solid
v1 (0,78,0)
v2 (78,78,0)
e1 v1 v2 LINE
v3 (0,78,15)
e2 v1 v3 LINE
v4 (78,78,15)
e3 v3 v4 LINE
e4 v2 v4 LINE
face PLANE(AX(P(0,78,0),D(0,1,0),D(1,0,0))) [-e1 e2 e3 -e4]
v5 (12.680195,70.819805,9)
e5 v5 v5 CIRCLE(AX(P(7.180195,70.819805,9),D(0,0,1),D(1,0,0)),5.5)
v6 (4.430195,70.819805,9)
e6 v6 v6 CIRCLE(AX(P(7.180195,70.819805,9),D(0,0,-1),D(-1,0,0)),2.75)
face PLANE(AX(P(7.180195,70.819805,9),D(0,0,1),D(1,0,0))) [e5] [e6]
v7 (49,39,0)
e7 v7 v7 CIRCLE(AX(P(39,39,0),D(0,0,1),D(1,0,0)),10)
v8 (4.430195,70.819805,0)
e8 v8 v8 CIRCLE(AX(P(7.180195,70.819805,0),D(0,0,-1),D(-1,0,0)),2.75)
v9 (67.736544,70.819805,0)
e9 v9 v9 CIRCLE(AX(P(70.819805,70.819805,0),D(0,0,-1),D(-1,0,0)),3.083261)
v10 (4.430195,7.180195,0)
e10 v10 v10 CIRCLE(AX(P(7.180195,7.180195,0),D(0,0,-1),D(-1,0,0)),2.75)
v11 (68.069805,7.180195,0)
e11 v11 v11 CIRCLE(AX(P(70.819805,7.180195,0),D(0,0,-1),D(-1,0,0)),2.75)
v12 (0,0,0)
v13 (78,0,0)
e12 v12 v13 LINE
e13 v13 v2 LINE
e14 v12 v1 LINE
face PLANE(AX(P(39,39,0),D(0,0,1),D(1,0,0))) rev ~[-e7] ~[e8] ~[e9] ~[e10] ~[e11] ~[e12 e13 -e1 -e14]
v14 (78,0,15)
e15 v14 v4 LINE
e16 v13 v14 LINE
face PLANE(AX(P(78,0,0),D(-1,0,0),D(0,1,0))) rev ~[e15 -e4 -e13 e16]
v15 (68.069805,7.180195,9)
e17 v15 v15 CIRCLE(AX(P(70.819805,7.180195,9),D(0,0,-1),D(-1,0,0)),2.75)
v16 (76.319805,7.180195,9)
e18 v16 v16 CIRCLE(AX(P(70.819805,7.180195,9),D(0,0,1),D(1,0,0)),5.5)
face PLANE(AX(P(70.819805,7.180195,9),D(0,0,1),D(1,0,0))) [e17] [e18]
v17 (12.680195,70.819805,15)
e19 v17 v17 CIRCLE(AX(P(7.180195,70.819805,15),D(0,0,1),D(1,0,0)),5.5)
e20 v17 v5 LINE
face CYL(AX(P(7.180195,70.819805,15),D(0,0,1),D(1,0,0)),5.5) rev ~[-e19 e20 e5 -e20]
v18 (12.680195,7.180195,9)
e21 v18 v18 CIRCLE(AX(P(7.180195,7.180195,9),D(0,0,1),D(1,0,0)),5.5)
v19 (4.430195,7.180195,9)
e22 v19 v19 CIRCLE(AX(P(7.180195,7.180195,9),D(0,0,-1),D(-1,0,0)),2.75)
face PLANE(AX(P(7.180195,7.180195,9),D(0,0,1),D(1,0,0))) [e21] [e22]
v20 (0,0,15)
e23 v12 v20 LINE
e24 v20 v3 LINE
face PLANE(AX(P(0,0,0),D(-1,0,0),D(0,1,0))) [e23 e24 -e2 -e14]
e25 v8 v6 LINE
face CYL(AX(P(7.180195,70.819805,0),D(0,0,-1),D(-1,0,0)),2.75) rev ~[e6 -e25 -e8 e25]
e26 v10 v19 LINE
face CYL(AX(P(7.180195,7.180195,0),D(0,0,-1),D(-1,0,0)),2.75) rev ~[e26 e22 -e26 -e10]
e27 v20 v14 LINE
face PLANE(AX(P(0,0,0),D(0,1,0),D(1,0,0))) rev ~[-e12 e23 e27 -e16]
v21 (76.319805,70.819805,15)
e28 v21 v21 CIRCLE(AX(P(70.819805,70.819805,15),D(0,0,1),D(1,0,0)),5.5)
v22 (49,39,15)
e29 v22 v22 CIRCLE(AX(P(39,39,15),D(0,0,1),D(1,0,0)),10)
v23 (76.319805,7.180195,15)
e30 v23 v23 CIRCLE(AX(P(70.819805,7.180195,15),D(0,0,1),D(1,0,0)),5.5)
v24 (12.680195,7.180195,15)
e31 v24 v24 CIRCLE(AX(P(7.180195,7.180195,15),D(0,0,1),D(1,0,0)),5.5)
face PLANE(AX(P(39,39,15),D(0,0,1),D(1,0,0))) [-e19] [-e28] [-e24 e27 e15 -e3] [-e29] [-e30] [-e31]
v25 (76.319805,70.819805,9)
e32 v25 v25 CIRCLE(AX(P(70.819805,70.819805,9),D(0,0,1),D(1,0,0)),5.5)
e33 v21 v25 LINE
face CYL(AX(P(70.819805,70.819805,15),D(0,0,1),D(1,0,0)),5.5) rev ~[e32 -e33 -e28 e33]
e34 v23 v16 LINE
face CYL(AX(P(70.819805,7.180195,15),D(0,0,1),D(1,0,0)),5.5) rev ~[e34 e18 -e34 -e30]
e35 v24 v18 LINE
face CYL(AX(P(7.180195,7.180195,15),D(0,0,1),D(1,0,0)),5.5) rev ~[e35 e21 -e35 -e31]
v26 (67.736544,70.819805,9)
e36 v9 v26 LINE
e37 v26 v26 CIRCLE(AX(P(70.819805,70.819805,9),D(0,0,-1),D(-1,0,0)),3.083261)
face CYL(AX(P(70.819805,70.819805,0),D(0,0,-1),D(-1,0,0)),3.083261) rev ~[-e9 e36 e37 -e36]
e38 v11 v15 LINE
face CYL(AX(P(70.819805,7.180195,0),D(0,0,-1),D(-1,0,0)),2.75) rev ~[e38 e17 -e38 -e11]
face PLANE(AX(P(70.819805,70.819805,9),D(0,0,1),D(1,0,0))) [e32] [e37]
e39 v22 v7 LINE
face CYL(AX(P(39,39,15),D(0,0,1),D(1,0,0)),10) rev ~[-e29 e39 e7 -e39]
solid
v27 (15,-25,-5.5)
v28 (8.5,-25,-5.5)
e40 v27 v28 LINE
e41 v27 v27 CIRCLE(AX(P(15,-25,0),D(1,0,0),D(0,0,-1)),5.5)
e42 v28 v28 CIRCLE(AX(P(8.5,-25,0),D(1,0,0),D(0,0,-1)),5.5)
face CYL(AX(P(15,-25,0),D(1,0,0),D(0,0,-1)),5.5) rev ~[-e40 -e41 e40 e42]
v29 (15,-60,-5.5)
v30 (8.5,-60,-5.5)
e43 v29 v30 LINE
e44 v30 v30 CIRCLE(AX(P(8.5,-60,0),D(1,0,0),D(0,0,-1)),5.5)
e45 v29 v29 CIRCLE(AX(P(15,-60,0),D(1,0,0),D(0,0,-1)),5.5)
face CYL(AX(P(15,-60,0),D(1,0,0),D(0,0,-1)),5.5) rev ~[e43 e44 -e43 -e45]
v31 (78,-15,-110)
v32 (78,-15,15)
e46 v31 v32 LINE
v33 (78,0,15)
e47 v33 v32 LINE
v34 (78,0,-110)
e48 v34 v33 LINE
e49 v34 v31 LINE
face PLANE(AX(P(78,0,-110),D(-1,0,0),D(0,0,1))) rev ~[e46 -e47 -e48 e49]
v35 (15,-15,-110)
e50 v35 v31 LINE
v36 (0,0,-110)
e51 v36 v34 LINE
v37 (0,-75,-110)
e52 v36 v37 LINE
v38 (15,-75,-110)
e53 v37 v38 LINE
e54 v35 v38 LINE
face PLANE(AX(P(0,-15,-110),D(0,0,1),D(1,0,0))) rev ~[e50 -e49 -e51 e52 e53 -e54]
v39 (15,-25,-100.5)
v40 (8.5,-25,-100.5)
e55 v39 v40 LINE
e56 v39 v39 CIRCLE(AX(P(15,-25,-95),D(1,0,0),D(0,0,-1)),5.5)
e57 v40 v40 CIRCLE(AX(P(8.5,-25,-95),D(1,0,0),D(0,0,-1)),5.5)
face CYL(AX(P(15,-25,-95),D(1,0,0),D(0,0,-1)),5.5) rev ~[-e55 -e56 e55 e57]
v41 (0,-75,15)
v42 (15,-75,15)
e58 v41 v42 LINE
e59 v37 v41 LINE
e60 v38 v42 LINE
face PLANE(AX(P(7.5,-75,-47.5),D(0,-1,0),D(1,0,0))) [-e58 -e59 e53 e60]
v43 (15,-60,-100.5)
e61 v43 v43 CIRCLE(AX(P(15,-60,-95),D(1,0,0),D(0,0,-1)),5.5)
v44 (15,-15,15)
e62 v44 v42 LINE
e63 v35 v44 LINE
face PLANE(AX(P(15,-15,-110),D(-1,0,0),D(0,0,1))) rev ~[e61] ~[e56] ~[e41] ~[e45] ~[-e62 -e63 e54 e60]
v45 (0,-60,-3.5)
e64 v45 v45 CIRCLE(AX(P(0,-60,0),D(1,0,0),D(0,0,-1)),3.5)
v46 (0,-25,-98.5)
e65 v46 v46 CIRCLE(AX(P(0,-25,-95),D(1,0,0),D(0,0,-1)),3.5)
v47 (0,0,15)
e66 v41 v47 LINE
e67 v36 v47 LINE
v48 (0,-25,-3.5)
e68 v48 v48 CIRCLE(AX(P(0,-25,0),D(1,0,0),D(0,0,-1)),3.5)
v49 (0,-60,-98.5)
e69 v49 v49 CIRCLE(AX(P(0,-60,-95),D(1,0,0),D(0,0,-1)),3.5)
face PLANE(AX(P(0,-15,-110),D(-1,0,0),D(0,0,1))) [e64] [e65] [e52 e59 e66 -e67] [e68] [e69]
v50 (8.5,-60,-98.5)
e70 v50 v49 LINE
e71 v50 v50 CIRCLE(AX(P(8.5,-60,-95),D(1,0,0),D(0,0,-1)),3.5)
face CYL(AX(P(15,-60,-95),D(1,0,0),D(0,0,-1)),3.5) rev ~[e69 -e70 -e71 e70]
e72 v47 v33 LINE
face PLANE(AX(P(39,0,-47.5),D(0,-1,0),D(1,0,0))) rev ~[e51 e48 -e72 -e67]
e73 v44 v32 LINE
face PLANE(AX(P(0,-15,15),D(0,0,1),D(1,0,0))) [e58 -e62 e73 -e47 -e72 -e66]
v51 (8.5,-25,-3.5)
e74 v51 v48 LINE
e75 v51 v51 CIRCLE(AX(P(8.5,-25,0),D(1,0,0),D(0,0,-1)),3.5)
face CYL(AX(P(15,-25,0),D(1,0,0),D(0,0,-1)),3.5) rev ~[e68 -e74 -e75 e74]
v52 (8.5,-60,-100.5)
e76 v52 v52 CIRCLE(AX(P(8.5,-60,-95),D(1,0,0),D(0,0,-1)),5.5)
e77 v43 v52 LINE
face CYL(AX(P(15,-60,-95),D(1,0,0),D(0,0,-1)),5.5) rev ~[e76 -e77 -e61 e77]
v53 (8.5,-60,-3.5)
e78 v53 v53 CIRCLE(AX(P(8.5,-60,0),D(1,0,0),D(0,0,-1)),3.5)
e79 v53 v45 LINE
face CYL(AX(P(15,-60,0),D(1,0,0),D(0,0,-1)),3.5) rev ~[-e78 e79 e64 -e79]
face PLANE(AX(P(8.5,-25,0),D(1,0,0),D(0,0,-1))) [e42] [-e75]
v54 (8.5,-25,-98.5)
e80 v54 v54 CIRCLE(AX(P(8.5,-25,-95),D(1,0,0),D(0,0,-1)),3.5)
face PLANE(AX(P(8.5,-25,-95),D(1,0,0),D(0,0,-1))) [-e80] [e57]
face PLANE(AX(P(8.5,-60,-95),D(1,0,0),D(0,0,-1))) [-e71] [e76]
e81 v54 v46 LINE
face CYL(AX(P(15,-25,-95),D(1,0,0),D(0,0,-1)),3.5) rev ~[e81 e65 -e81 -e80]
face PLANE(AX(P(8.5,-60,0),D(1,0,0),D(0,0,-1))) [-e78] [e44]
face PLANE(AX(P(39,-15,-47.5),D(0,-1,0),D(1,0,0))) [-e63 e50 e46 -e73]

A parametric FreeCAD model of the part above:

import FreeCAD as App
import Part
import Sketcher

V = App.Vector

doc = App.newDocument("Part")
body = doc.addObject("PartDesign::Body", "Body")

sketch1 = body.newObject("Sketcher::SketchObject", "Sketch")
sketch1.AttachmentSupport = (doc.getObject("XY_Plane"), [""])
sketch1.MapMode = "FlatFace"
sketch1.addGeometry(Part.LineSegment(V(0, 78, 0), V(0, 0, 0)), False)
sketch1.addGeometry(Part.LineSegment(V(0, 0, 0), V(78, 0, 0)), False)
sketch1.addGeometry(Part.LineSegment(V(78, 0, 0), V(78, 78, 0)), False)
sketch1.addGeometry(Part.LineSegment(V(78, 78, 0), V(0, 78, 0)), False)
sketch1.addConstraint(Sketcher.Constraint("Coincident", 0, 2, 1, 1))
sketch1.addConstraint(Sketcher.Constraint("Coincident", 1, 2, 2, 1))
sketch1.addConstraint(Sketcher.Constraint("Coincident", 2, 2, 3, 1))
sketch1.addConstraint(Sketcher.Constraint("Coincident", 3, 2, 0, 1))
sketch1.addConstraint(Sketcher.Constraint("Vertical", 0))
sketch1.addConstraint(Sketcher.Constraint("Horizontal", 1))
sketch1.addConstraint(Sketcher.Constraint("Vertical", 2))
sketch1.addConstraint(Sketcher.Constraint("Horizontal", 3))
sketch1.addConstraint(Sketcher.Constraint("Coincident", 0, 2, -1, 1))
sketch1.addConstraint(Sketcher.Constraint("Equal", 3, 0))
sketch1.addConstraint(Sketcher.Constraint("DistanceX", 1, 1, 1, 2, 78.0))
pad1 = body.newObject("PartDesign::Pad", "Pad")
pad1.Profile = sketch1
pad1.Length = 15

sketch2 = body.newObject("Sketcher::SketchObject", "Sketch001")
sketch2.AttachmentSupport = (doc.getObject("XY_Plane"), [""])
sketch2.MapMode = "FlatFace"
sketch2.addGeometry(Part.Circle(V(70.819805, 70.819805, 0), V(0, 0, 1), 3.083261), False)
sketch2.addGeometry(Part.Circle(V(70.819805, 7.180195, 0), V(0, 0, 1), 2.75), False)
sketch2.addGeometry(Part.Circle(V(7.180195, 70.819805, 0), V(0, 0, 1), 2.75), False)
sketch2.addGeometry(Part.Circle(V(7.180195, 7.180195, 0), V(0, 0, 1), 2.75), False)
sketch2.addConstraint(Sketcher.Constraint("Equal", 1, 2))
sketch2.addConstraint(Sketcher.Constraint("Equal", 2, 3))
sketch2.addConstraint(Sketcher.Constraint("Horizontal", 0, 3, 2, 3))
sketch2.addConstraint(Sketcher.Constraint("Horizontal", 1, 3, 3, 3))
sketch2.addConstraint(Sketcher.Constraint("Vertical", 0, 3, 1, 3))
sketch2.addConstraint(Sketcher.Constraint("Vertical", 2, 3, 3, 3))
sketch2.addConstraint(Sketcher.Constraint("Diameter", 1, 5.5))
sketch2.addConstraint(Sketcher.Constraint("Diameter", 0, 6.166522))
sketch2.addConstraint(Sketcher.Constraint("DistanceY", 1, 3, 0, 3, 63.63961))
sketch2.addConstraint(Sketcher.Constraint("DistanceX", 2, 3, 0, 3, 63.63961))
sketch2.addConstraint(Sketcher.Constraint("DistanceX", -1, 1, 0, 3, 70.819805))
sketch2.addConstraint(Sketcher.Constraint("DistanceY", -1, 1, 0, 3, 70.819805))
pocket1 = body.newObject("PartDesign::Pocket", "Pocket")
pocket1.Profile = sketch2
pocket1.Type = "ThroughAll"
pocket1.Reversed = True

sketch3 = body.newObject("Sketcher::SketchObject", "Sketch002")
sketch3.AttachmentSupport = (doc.getObject("XY_Plane"), [""])
sketch3.MapMode = "FlatFace"
sketch3.AttachmentOffset = App.Placement(V(0, 0, 15), App.Rotation())
sketch3.addGeometry(Part.Circle(V(39, 39, 0), V(0, 0, 1), 10), False)
sketch3.addConstraint(Sketcher.Constraint("Diameter", 0, 20.0))
sketch3.addConstraint(Sketcher.Constraint("DistanceX", -1, 1, 0, 3, 39.0))
sketch3.addConstraint(Sketcher.Constraint("DistanceY", -1, 1, 0, 3, 39.0))
pocket2 = body.newObject("PartDesign::Pocket", "Pocket001")
pocket2.Profile = sketch3
pocket2.Length = 60

sketch4 = body.newObject("Sketcher::SketchObject", "Sketch003")
sketch4.AttachmentSupport = (doc.getObject("XY_Plane"), [""])
sketch4.MapMode = "FlatFace"
sketch4.AttachmentOffset = App.Placement(V(0, 0, 15), App.Rotation())
sketch4.addGeometry(Part.Circle(V(7.180195, 70.819805, 0), V(0, 0, 1), 5.5), False)
sketch4.addGeometry(Part.Circle(V(7.180195, 7.180195, 0), V(0, 0, 1), 5.5), False)
sketch4.addGeometry(Part.Circle(V(70.819805, 7.180195, 0), V(0, 0, 1), 5.5), False)
sketch4.addGeometry(Part.Circle(V(70.819805, 70.819805, 0), V(0, 0, 1), 5.5), False)
sketch4.addConstraint(Sketcher.Constraint("Equal", 0, 1))
sketch4.addConstraint(Sketcher.Constraint("Equal", 1, 2))
sketch4.addConstraint(Sketcher.Constraint("Equal", 2, 3))
sketch4.addConstraint(Sketcher.Constraint("Horizontal", 1, 3, 2, 3))
sketch4.addConstraint(Sketcher.Constraint("Horizontal", 0, 3, 3, 3))
sketch4.addConstraint(Sketcher.Constraint("Vertical", 0, 3, 1, 3))
sketch4.addConstraint(Sketcher.Constraint("Vertical", 2, 3, 3, 3))
sketch4.addConstraint(Sketcher.Constraint("Diameter", 0, 11.0))
sketch4.addConstraint(Sketcher.Constraint("DistanceY", 1, 3, 0, 3, 63.63961))
sketch4.addConstraint(Sketcher.Constraint("DistanceX", 1, 3, 2, 3, 63.63961))
sketch4.addConstraint(Sketcher.Constraint("DistanceX", -1, 1, 0, 3, 7.180195))
sketch4.addConstraint(Sketcher.Constraint("DistanceY", -1, 1, 0, 3, 70.819805))
pocket3 = body.newObject("PartDesign::Pocket", "Pocket002")
pocket3.Profile = sketch4
pocket3.Length = 6
body2 = doc.addObject("PartDesign::Body", "Body001")

sketch5 = body2.newObject("Sketcher::SketchObject", "Sketch004")
sketch5.AttachmentSupport = (doc.getObject("XZ_Plane001"), [""])
sketch5.MapMode = "FlatFace"
sketch5.addGeometry(Part.LineSegment(V(0, 15, 0), V(0, -110, 0)), False)
sketch5.addGeometry(Part.LineSegment(V(0, -110, 0), V(78, -110, 0)), False)
sketch5.addGeometry(Part.LineSegment(V(78, -110, 0), V(78, 15, 0)), False)
sketch5.addGeometry(Part.LineSegment(V(78, 15, 0), V(0, 15, 0)), False)
sketch5.addConstraint(Sketcher.Constraint("Coincident", 0, 2, 1, 1))
sketch5.addConstraint(Sketcher.Constraint("Coincident", 1, 2, 2, 1))
sketch5.addConstraint(Sketcher.Constraint("Coincident", 2, 2, 3, 1))
sketch5.addConstraint(Sketcher.Constraint("Coincident", 3, 2, 0, 1))
sketch5.addConstraint(Sketcher.Constraint("Vertical", 0))
sketch5.addConstraint(Sketcher.Constraint("Horizontal", 1))
sketch5.addConstraint(Sketcher.Constraint("Vertical", 2))
sketch5.addConstraint(Sketcher.Constraint("Horizontal", 3))
sketch5.addConstraint(Sketcher.Constraint("PointOnObject", 0, 2, -2))
sketch5.addConstraint(Sketcher.Constraint("DistanceX", 1, 1, 1, 2, 78.0))
sketch5.addConstraint(Sketcher.Constraint("DistanceY", 0, 2, 0, 1, 125.0))
sketch5.addConstraint(Sketcher.Constraint("DistanceY", 0, 2, -1, 1, 110.0))
pad2 = body2.newObject("PartDesign::Pad", "Pad001")
pad2.Profile = sketch5
pad2.Length = 15

sketch6 = body2.newObject("Sketcher::SketchObject", "Sketch005")
sketch6.AttachmentSupport = (doc.getObject("XZ_Plane001"), [""])
sketch6.MapMode = "FlatFace"
sketch6.AttachmentOffset = App.Placement(V(0, 0, 15), App.Rotation())
sketch6.addGeometry(Part.LineSegment(V(0, 15, 0), V(0, -110, 0)), False)
sketch6.addGeometry(Part.LineSegment(V(0, -110, 0), V(15, -110, 0)), False)
sketch6.addGeometry(Part.LineSegment(V(15, -110, 0), V(15, 15, 0)), False)
sketch6.addGeometry(Part.LineSegment(V(15, 15, 0), V(0, 15, 0)), False)
sketch6.addConstraint(Sketcher.Constraint("Coincident", 0, 2, 1, 1))
sketch6.addConstraint(Sketcher.Constraint("Coincident", 1, 2, 2, 1))
sketch6.addConstraint(Sketcher.Constraint("Coincident", 2, 2, 3, 1))
sketch6.addConstraint(Sketcher.Constraint("Coincident", 3, 2, 0, 1))
sketch6.addConstraint(Sketcher.Constraint("Vertical", 0))
sketch6.addConstraint(Sketcher.Constraint("Horizontal", 1))
sketch6.addConstraint(Sketcher.Constraint("Vertical", 2))
sketch6.addConstraint(Sketcher.Constraint("Horizontal", 3))
sketch6.addConstraint(Sketcher.Constraint("PointOnObject", 0, 2, -2))
sketch6.addConstraint(Sketcher.Constraint("DistanceX", 1, 1, 1, 2, 15.0))
sketch6.addConstraint(Sketcher.Constraint("DistanceY", 0, 2, 0, 1, 125.0))
sketch6.addConstraint(Sketcher.Constraint("DistanceY", 0, 2, -1, 1, 110.0))
pad3 = body2.newObject("PartDesign::Pad", "Pad002")
pad3.Profile = sketch6
pad3.Length = 60

sketch7 = body2.newObject("Sketcher::SketchObject", "Sketch006")
sketch7.AttachmentSupport = (doc.getObject("YZ_Plane001"), [""])
sketch7.MapMode = "FlatFace"
sketch7.AttachmentOffset = App.Placement(V(0, 0, 15), App.Rotation())
sketch7.addGeometry(Part.Circle(V(-25, 0, 0), V(0, 0, 1), 3.5), False)
sketch7.addGeometry(Part.Circle(V(-25, -95, 0), V(0, 0, 1), 3.5), False)
sketch7.addGeometry(Part.Circle(V(-60, 0, 0), V(0, 0, 1), 3.5), False)
sketch7.addGeometry(Part.Circle(V(-60, -95, 0), V(0, 0, 1), 3.5), False)
sketch7.addConstraint(Sketcher.Constraint("Equal", 0, 1))
sketch7.addConstraint(Sketcher.Constraint("Equal", 1, 2))
sketch7.addConstraint(Sketcher.Constraint("Equal", 2, 3))
sketch7.addConstraint(Sketcher.Constraint("PointOnObject", 0, 3, -1))
sketch7.addConstraint(Sketcher.Constraint("PointOnObject", 2, 3, -1))
sketch7.addConstraint(Sketcher.Constraint("Horizontal", 1, 3, 3, 3))
sketch7.addConstraint(Sketcher.Constraint("Vertical", 0, 3, 1, 3))
sketch7.addConstraint(Sketcher.Constraint("Vertical", 2, 3, 3, 3))
sketch7.addConstraint(Sketcher.Constraint("Diameter", 0, 7.0))
sketch7.addConstraint(Sketcher.Constraint("DistanceX", 0, 3, -1, 1, 25.0))
sketch7.addConstraint(Sketcher.Constraint("DistanceY", 1, 3, -1, 1, 95.0))
sketch7.addConstraint(Sketcher.Constraint("DistanceX", 2, 3, -1, 1, 60.0))
pocket4 = body2.newObject("PartDesign::Pocket", "Pocket003")
pocket4.Profile = sketch7
pocket4.Type = "ThroughAll"

sketch8 = body2.newObject("Sketcher::SketchObject", "Sketch007")
sketch8.AttachmentSupport = (doc.getObject("YZ_Plane001"), [""])
sketch8.MapMode = "FlatFace"
sketch8.AttachmentOffset = App.Placement(V(0, 0, 15), App.Rotation())
sketch8.addGeometry(Part.Circle(V(-25, 0, 0), V(0, 0, 1), 5.5), False)
sketch8.addGeometry(Part.Circle(V(-60, 0, 0), V(0, 0, 1), 5.5), False)
sketch8.addGeometry(Part.Circle(V(-60, -95, 0), V(0, 0, 1), 5.5), False)
sketch8.addGeometry(Part.Circle(V(-25, -95, 0), V(0, 0, 1), 5.5), False)
sketch8.addConstraint(Sketcher.Constraint("Equal", 0, 1))
sketch8.addConstraint(Sketcher.Constraint("Equal", 1, 2))
sketch8.addConstraint(Sketcher.Constraint("Equal", 2, 3))
sketch8.addConstraint(Sketcher.Constraint("PointOnObject", 0, 3, -1))
sketch8.addConstraint(Sketcher.Constraint("PointOnObject", 1, 3, -1))
sketch8.addConstraint(Sketcher.Constraint("Horizontal", 2, 3, 3, 3))
sketch8.addConstraint(Sketcher.Constraint("Vertical", 1, 3, 2, 3))
sketch8.addConstraint(Sketcher.Constraint("Vertical", 0, 3, 3, 3))
sketch8.addConstraint(Sketcher.Constraint("Diameter", 0, 11.0))
sketch8.addConstraint(Sketcher.Constraint("DistanceX", 0, 3, -1, 1, 25.0))
sketch8.addConstraint(Sketcher.Constraint("DistanceX", 1, 3, -1, 1, 60.0))
sketch8.addConstraint(Sketcher.Constraint("DistanceY", 2, 3, -1, 1, 95.0))
pocket5 = body2.newObject("PartDesign::Pocket", "Pocket004")
pocket5.Profile = sketch8
pocket5.Length = 6.5

doc.recompute()
